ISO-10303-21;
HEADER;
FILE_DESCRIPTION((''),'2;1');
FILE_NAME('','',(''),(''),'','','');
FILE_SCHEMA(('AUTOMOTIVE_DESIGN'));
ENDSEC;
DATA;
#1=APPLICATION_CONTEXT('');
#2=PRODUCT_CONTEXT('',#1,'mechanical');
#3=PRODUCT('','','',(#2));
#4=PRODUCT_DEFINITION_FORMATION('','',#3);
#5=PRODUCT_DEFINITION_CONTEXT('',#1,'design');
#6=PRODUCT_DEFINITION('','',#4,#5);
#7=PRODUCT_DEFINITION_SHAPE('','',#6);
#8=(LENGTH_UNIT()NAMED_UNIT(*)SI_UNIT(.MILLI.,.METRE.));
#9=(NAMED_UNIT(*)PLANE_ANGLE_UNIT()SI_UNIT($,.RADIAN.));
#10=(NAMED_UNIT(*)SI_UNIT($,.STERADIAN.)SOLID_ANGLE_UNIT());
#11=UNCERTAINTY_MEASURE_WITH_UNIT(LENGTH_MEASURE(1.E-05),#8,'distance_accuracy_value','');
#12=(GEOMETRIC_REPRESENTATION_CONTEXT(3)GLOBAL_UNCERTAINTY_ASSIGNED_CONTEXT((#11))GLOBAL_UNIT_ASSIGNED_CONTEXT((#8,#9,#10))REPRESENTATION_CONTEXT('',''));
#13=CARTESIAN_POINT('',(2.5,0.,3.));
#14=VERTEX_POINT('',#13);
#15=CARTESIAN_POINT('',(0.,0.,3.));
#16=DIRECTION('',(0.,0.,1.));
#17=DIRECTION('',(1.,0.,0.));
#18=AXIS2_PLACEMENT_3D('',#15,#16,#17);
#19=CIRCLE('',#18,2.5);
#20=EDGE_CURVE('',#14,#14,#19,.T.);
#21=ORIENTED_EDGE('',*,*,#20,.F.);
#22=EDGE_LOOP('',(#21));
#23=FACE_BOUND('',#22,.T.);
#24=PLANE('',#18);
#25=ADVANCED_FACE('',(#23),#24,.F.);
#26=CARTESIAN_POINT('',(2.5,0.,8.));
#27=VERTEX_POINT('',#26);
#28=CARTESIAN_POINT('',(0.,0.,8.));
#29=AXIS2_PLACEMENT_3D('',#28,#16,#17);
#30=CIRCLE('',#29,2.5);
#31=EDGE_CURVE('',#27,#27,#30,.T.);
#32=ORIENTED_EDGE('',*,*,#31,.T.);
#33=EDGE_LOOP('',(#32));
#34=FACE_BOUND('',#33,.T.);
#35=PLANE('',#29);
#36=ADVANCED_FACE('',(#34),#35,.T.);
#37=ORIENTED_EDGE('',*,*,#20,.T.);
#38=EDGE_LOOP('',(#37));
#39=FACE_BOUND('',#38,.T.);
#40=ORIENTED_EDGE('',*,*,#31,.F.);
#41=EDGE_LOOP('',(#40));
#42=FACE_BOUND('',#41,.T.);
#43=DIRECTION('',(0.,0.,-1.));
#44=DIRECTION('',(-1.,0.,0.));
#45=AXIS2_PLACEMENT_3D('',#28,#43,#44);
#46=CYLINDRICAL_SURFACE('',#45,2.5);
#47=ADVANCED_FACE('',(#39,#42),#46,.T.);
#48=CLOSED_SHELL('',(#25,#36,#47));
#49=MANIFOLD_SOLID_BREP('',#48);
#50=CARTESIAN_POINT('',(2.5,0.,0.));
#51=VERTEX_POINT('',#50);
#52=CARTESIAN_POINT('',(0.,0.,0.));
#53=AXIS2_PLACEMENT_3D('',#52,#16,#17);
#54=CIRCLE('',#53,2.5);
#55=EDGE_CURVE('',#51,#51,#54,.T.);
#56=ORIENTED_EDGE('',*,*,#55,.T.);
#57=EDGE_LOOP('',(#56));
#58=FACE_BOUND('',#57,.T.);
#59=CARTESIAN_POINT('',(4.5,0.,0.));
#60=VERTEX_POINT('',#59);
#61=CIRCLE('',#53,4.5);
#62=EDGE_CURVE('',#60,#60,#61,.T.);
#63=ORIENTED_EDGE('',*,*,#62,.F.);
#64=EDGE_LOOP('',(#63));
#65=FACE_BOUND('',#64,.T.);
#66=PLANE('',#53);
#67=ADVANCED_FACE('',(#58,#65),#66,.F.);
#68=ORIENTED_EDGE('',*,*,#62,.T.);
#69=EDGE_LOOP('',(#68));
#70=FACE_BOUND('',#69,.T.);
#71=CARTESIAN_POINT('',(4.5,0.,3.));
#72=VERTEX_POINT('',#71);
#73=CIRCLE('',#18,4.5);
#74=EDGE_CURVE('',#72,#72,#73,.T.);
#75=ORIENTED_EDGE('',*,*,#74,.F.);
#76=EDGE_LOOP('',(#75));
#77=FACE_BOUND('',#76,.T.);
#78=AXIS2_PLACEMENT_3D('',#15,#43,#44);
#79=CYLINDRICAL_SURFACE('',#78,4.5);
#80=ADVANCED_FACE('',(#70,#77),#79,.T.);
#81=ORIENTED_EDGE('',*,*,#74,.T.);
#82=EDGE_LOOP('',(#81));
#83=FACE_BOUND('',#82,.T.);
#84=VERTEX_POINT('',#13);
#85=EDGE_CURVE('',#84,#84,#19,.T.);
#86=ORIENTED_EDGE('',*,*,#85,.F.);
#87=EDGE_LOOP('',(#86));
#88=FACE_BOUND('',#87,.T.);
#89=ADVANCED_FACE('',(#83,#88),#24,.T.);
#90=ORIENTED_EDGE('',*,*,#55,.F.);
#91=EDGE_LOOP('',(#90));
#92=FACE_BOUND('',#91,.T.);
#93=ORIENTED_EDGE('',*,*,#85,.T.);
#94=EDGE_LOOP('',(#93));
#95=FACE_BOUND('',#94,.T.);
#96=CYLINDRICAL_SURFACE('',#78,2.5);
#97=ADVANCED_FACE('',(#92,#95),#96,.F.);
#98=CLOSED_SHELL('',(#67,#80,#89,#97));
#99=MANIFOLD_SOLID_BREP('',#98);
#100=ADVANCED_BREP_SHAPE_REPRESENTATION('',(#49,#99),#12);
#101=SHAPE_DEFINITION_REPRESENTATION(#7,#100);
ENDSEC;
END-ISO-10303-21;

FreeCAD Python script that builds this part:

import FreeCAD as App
import Part
import Sketcher

doc = App.newDocument("Part")
body = doc.addObject("PartDesign::Body", "Body")

sketch1 = body.newObject("Sketcher::SketchObject", "Sketch")
sketch1.AttachmentSupport = (doc.getObject("XY_Plane"), [""])
sketch1.MapMode = "FlatFace"
sketch1.addGeometry(Part.Circle(App.Vector(0, 0, 0), App.Vector(0, 0, 1), 4.5), False)
sketch1.addGeometry(Part.Circle(App.Vector(0, 0, 0), App.Vector(0, 0, 1), 2.5), False)
sketch1.addConstraint(Sketcher.Constraint("Coincident", 0, 3, -1, 1))
sketch1.addConstraint(Sketcher.Constraint("Coincident", 1, 3, -1, 1))
sketch1.addConstraint(Sketcher.Constraint("Diameter", 0, 9.0))
sketch1.addConstraint(Sketcher.Constraint("Diameter", 1, 5.0))
pad1 = body.newObject("PartDesign::Pad", "Pad")
pad1.Profile = sketch1
pad1.Length = 3
body2 = doc.addObject("PartDesign::Body", "Body001")

sketch2 = body2.newObject("Sketcher::SketchObject", "Sketch001")
sketch2.AttachmentSupport = (doc.getObject("XY_Plane001"), [""])
sketch2.MapMode = "FlatFace"
sketch2.AttachmentOffset = App.Placement(App.Vector(0, 0, 3), App.Rotation())
sketch2.addGeometry(Part.Circle(App.Vector(0, 0, 0), App.Vector(0, 0, 1), 2.5), False)
sketch2.addConstraint(Sketcher.Constraint("Coincident", 0, 3, -1, 1))
sketch2.addConstraint(Sketcher.Constraint("Diameter", 0, 5.0))
pad2 = body2.newObject("PartDesign::Pad", "Pad001")
pad2.Profile = sketch2
pad2.Length = 5

doc.recompute()
